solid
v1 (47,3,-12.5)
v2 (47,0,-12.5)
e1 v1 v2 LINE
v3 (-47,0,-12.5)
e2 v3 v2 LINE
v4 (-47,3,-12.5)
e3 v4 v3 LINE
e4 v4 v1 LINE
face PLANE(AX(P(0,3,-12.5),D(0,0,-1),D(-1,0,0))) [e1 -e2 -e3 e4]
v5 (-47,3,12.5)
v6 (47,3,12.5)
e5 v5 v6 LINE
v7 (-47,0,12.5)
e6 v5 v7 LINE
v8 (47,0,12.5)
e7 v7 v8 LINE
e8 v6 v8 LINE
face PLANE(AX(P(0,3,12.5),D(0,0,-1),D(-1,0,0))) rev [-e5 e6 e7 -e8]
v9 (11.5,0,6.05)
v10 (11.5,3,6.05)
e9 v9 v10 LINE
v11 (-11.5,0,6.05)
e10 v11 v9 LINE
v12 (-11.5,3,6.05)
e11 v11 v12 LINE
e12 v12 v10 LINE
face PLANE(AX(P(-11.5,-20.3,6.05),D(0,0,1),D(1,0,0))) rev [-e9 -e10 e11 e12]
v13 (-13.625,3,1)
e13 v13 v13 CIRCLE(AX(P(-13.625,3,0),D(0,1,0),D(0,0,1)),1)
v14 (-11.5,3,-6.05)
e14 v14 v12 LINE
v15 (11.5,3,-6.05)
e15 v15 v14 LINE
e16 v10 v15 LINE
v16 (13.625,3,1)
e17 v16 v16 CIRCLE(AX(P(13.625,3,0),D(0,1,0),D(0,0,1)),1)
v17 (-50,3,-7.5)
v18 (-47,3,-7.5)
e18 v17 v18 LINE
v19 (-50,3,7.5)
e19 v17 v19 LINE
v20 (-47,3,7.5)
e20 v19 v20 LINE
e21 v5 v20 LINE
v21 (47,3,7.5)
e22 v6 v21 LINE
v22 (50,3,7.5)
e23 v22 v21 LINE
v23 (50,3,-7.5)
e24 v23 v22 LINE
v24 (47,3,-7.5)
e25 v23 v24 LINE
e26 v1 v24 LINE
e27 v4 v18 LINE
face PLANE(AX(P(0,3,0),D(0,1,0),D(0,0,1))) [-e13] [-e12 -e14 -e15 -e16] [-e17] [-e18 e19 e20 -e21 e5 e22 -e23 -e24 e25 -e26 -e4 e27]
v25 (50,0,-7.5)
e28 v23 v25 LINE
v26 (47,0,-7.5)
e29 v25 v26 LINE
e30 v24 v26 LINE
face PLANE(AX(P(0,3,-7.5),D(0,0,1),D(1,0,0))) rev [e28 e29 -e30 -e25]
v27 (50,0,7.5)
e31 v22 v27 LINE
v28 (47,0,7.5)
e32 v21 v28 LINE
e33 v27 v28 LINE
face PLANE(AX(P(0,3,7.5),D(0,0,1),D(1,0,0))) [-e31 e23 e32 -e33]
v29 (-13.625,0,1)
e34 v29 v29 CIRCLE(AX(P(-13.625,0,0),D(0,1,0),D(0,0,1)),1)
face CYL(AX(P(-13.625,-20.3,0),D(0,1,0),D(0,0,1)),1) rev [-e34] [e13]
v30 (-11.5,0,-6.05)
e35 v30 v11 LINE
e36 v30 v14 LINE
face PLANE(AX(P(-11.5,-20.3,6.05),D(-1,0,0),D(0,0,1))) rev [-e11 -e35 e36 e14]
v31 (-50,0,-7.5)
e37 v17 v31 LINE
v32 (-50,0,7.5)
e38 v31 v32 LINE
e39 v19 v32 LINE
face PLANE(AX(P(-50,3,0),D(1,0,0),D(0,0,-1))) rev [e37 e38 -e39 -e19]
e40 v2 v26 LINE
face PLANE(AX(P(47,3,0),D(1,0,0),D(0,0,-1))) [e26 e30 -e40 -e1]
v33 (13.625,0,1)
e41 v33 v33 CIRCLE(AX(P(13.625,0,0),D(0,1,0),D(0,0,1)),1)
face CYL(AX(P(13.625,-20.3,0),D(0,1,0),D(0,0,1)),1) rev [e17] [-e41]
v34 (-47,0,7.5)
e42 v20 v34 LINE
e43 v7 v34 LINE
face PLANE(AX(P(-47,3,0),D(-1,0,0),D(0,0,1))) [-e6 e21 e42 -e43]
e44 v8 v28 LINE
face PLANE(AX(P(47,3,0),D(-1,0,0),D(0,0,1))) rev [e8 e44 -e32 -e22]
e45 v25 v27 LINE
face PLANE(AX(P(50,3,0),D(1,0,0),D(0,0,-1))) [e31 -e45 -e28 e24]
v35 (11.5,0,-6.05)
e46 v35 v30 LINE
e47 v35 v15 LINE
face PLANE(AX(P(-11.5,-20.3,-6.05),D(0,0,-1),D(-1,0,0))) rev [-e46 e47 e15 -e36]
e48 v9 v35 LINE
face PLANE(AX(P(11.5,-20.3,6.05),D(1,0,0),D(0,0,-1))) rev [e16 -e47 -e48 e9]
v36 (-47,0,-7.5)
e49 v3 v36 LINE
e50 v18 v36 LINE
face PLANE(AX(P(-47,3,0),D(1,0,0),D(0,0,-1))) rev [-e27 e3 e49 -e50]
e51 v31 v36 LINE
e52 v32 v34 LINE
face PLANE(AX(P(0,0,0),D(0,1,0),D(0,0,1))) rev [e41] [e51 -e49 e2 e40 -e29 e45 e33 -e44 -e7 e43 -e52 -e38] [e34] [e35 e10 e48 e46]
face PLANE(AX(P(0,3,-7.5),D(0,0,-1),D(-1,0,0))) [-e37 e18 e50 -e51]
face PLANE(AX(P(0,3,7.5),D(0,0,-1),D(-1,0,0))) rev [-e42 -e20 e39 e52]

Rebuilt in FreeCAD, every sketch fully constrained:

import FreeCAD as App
import Part
import Sketcher

V = App.Vector
Q = App.Units.Quantity

doc = App.newDocument("Part")
body = doc.addObject("PartDesign::Body", "Body")

sketch1 = body.newObject("Sketcher::SketchObject", "Sketch")
sketch1.AttachmentSupport = (doc.getObject("XZ_Plane"), [""])
sketch1.MapMode = "FlatFace"
sketch1.addGeometry(Part.LineSegment(V(47, 7.5, 0), V(50, 7.5, 0)), False)
sketch1.addGeometry(Part.LineSegment(V(50, 7.5, 0), V(50, -7.5, 0)), False)
sketch1.addGeometry(Part.LineSegment(V(50, -7.5, 0), V(47, -7.5, 0)), False)
sketch1.addGeometry(Part.LineSegment(V(47, -7.5, 0), V(47, -12.5, 0)), False)
sketch1.addGeometry(Part.LineSegment(V(47, -12.5, 0), V(-47, -12.5, 0)), False)
sketch1.addGeometry(Part.LineSegment(V(-47, -12.5, 0), V(-47, -7.5, 0)), False)
sketch1.addGeometry(Part.LineSegment(V(-47, -7.5, 0), V(-50, -7.5, 0)), False)
sketch1.addGeometry(Part.LineSegment(V(-50, -7.5, 0), V(-50, 7.5, 0)), False)
sketch1.addGeometry(Part.LineSegment(V(-50, 7.5, 0), V(-47, 7.5, 0)), False)
sketch1.addGeometry(Part.LineSegment(V(-47, 7.5, 0), V(-47, 12.5, 0)), False)
sketch1.addGeometry(Part.LineSegment(V(-47, 12.5, 0), V(47, 12.5, 0)), False)
sketch1.addGeometry(Part.LineSegment(V(47, 12.5, 0), V(47, 7.5, 0)), False)
sketch1.addConstraint(Sketcher.Constraint("Coincident", 0, 2, 1, 1))
sketch1.addConstraint(Sketcher.Constraint("Coincident", 1, 2, 2, 1))
sketch1.addConstraint(Sketcher.Constraint("Coincident", 2, 2, 3, 1))
sketch1.addConstraint(Sketcher.Constraint("Coincident", 3, 2, 4, 1))
sketch1.addConstraint(Sketcher.Constraint("Coincident", 4, 2, 5, 1))
sketch1.addConstraint(Sketcher.Constraint("Coincident", 5, 2, 6, 1))
sketch1.addConstraint(Sketcher.Constraint("Coincident", 6, 2, 7, 1))
sketch1.addConstraint(Sketcher.Constraint("Coincident", 7, 2, 8, 1))
sketch1.addConstraint(Sketcher.Constraint("Coincident", 8, 2, 9, 1))
sketch1.addConstraint(Sketcher.Constraint("Coincident", 9, 2, 10, 1))
sketch1.addConstraint(Sketcher.Constraint("Coincident", 10, 2, 11, 1))
sketch1.addConstraint(Sketcher.Constraint("Coincident", 11, 2, 0, 1))
sketch1.addConstraint(Sketcher.Constraint("Horizontal", 0))
sketch1.addConstraint(Sketcher.Constraint("Vertical", 1))
sketch1.addConstraint(Sketcher.Constraint("Horizontal", 2))
sketch1.addConstraint(Sketcher.Constraint("Vertical", 3))
sketch1.addConstraint(Sketcher.Constraint("Horizontal", 4))
sketch1.addConstraint(Sketcher.Constraint("Vertical", 5))
sketch1.addConstraint(Sketcher.Constraint("Horizontal", 6))
sketch1.addConstraint(Sketcher.Constraint("Vertical", 7))
sketch1.addConstraint(Sketcher.Constraint("Horizontal", 8))
sketch1.addConstraint(Sketcher.Constraint("Vertical", 9))
sketch1.addConstraint(Sketcher.Constraint("Horizontal", 10))
sketch1.addConstraint(Sketcher.Constraint("Vertical", 11))
sketch1.addConstraint(Sketcher.Constraint("Symmetric", 0, 2, 6, 2, -1, 1))
sketch1.addConstraint(Sketcher.Constraint("Symmetric", 2, 2, 8, 2, -1, 1))
sketch1.addConstraint(Sketcher.Constraint("Symmetric", 4, 2, 10, 2, -1, 1))
sketch1.addConstraint(Sketcher.Constraint("Symmetric", 2, 2, 5, 2, -2))
sketch1.addConstraint(Sketcher.Constraint("DistanceX", 0, 1, 0, 2, Q("3 mm")))
sketch1.addConstraint(Sketcher.Constraint("DistanceX", 4, 2, 4, 1, Q("94 mm")))
sketch1.addConstraint(Sketcher.Constraint("DistanceY", 1, 2, 1, 1, Q("15 mm")))
sketch1.addConstraint(Sketcher.Constraint("DistanceY", 3, 2, 3, 1, Q("5 mm")))
pad1 = body.newObject("PartDesign::Pad", "Pad")
pad1.Profile = sketch1
pad1.Length = 3
pad1.Reversed = True

sketch2 = body.newObject("Sketcher::SketchObject", "Sketch001")
sketch2.AttachmentSupport = (doc.getObject("XZ_Plane"), [""])
sketch2.MapMode = "FlatFace"
sketch2.AttachmentOffset = App.Placement(V(0, 0, -3), App.Rotation())
sketch2.addGeometry(Part.Circle(V(-13.6, 0, 0), V(0, 0, 1), 1), False)
sketch2.addGeometry(Part.Circle(V(13.6, 0, 0), V(0, 0, 1), 1), False)
sketch2.addGeometry(Part.LineSegment(V(-11.5, -6, 0), V(-11.5, 6, 0)), False)
sketch2.addGeometry(Part.LineSegment(V(-11.5, 6, 0), V(11.5, 6, 0)), False)
sketch2.addGeometry(Part.LineSegment(V(11.5, 6, 0), V(11.5, -6, 0)), False)
sketch2.addGeometry(Part.LineSegment(V(11.5, -6, 0), V(-11.5, -6, 0)), False)
sketch2.addConstraint(Sketcher.Constraint("Coincident", 2, 2, 3, 1))
sketch2.addConstraint(Sketcher.Constraint("Coincident", 3, 2, 4, 1))
sketch2.addConstraint(Sketcher.Constraint("Coincident", 4, 2, 5, 1))
sketch2.addConstraint(Sketcher.Constraint("Coincident", 5, 2, 2, 1))
sketch2.addConstraint(Sketcher.Constraint("Vertical", 2))
sketch2.addConstraint(Sketcher.Constraint("Horizontal", 3))
sketch2.addConstraint(Sketcher.Constraint("Vertical", 4))
sketch2.addConstraint(Sketcher.Constraint("Horizontal", 5))
sketch2.addConstraint(Sketcher.Constraint("Equal", 0, 1))
sketch2.addConstraint(Sketcher.Constraint("Symmetric", 0, 3, 1, 3, -1, 1))
sketch2.addConstraint(Sketcher.Constraint("Symmetric", 2, 2, 4, 2, -1, 1))
sketch2.addConstraint(Sketcher.Constraint("PointOnObject", 0, 3, -1))
sketch2.addConstraint(Sketcher.Constraint("Diameter", 0, Q("2 mm")))
sketch2.addConstraint(Sketcher.Constraint("DistanceX", 3, 1, 3, 2, Q("23 mm")))
sketch2.addConstraint(Sketcher.Constraint("DistanceY", 2, 1, 2, 2, Q("12.1 mm")))
sketch2.addConstraint(Sketcher.Constraint("DistanceX", 0, 3, 1, 3, Q("27.25 mm")))
pocket1 = body.newObject("PartDesign::Pocket", "Pocket")
pocket1.Profile = sketch2
pocket1.Length = 23.3
pocket1.Reversed = True

doc.recompute()
